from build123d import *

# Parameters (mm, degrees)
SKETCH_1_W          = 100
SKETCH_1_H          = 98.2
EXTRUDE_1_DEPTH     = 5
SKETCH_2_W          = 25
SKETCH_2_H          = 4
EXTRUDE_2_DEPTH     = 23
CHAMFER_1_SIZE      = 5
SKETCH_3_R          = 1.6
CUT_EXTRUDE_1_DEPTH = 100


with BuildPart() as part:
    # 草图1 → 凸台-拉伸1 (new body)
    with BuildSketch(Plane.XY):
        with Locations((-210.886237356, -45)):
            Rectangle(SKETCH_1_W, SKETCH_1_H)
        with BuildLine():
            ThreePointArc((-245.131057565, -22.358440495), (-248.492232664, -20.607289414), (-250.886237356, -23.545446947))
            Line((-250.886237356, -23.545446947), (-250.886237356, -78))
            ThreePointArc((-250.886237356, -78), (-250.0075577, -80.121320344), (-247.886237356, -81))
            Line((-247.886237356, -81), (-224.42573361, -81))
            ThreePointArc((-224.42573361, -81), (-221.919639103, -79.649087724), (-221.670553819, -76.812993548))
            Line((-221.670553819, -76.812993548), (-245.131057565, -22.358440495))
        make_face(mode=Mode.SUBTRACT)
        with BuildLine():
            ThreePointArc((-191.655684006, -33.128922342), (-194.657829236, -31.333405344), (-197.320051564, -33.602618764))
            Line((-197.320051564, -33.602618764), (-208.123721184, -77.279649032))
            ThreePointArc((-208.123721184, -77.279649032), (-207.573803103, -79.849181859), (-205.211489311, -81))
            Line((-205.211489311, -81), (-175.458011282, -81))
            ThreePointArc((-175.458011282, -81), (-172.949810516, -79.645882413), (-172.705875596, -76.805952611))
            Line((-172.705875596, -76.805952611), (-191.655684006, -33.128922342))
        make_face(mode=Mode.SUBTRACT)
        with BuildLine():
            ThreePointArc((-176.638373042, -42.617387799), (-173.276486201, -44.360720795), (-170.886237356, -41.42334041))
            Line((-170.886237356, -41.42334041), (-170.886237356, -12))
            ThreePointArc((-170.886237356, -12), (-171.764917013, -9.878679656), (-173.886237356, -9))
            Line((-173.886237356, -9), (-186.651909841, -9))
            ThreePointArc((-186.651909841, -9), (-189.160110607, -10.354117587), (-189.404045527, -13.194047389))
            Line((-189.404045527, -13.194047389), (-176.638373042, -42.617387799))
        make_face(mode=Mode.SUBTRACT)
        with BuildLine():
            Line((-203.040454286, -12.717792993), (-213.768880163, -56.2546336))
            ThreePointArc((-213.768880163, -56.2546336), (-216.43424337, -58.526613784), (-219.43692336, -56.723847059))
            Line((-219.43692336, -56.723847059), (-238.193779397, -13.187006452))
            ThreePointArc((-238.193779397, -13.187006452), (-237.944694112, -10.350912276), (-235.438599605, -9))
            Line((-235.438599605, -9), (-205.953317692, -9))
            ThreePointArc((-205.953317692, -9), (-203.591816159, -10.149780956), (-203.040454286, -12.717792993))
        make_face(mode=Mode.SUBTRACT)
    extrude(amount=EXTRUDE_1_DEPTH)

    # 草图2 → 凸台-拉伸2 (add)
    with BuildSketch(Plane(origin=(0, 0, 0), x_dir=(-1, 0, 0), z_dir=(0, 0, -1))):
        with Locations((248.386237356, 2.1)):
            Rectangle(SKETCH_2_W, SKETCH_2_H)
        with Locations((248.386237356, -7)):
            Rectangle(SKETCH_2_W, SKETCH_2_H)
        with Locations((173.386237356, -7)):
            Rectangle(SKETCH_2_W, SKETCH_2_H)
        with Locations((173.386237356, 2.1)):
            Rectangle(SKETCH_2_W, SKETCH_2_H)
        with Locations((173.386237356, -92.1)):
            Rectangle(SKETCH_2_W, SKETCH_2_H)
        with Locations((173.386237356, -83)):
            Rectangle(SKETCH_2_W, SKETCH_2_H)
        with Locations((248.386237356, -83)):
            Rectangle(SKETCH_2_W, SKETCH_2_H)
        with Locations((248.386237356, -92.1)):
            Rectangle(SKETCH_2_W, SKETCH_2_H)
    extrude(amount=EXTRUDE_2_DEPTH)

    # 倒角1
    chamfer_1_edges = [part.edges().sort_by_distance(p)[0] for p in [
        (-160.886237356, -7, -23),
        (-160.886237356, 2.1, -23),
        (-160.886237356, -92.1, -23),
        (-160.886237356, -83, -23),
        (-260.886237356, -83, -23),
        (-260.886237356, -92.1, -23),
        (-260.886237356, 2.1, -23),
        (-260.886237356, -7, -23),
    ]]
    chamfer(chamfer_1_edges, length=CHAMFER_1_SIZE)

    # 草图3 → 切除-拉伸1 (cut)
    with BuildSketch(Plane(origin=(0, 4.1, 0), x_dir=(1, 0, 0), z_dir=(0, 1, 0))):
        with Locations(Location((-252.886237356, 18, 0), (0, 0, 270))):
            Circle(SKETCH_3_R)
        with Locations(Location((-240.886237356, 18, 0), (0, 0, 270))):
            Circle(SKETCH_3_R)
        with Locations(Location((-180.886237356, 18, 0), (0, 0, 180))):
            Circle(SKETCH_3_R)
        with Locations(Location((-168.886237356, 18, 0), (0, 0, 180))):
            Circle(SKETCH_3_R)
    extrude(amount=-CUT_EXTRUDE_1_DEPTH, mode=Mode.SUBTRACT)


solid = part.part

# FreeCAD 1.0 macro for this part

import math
import FreeCAD as App
import Part
import Sketcher


def edges_at(feature, points):
    """Names of the edges that pass closest to the given points."""
    edges = feature.Shape.Edges
    near = lambda p: min(range(len(edges)), key=lambda i: edges[i].distToShape(Part.Vertex(*p))[0])
    return sorted({f"Edge{near(p) + 1}" for p in points})


def add_polygon(sketch, points):
    """Adds a closed chain of lines whose ends are joined by coincident constraints."""
    first, n = sketch.GeometryCount, len(points)
    for a, b in zip(points, points[1:] + points[:1]):
        sketch.addGeometry(Part.LineSegment(App.Vector(*a, 0), App.Vector(*b, 0)), False)
    for i in range(n):
        sketch.addConstraint(Sketcher.Constraint("Coincident", first + i, 2, first + (i + 1) % n, 1))

doc = App.newDocument("Part")
body = doc.addObject("PartDesign::Body", "Body")

# Sketch on XY plane
sketch1 = doc.addObject("Sketcher::SketchObject", "Sketch")
body.addObject(sketch1)
sketch1.AttachmentSupport = (doc.XY_Plane, [""])
sketch1.MapMode = "FlatFace"
add_polygon(sketch1, [(-260.886237, 4.1), (-260.886237, -94.1), (-160.886237, -94.1), (-160.886237, 4.1)])  # lines 0-3
sketch1.addGeometry(Part.ArcOfCircle(Part.Circle(App.Vector(-247.886237, -23.545447, 0), App.Vector(0, 0, 1), 3), math.radians(23.307693), math.radians(180)), False)  # 4
sketch1.addGeometry(Part.LineSegment(App.Vector(-245.131058, -22.35844, 0), App.Vector(-221.670554, -76.812994, 0)), False)  # 5
sketch1.addGeometry(Part.ArcOfCircle(Part.Circle(App.Vector(-224.425734, -78, 0), App.Vector(0, 0, 1), 3), math.radians(-90), math.radians(23.307693)), False)  # 6
sketch1.addGeometry(Part.LineSegment(App.Vector(-224.425734, -81, 0), App.Vector(-247.886237, -81, 0)), False)  # 7
sketch1.addGeometry(Part.ArcOfCircle(Part.Circle(App.Vector(-247.886237, -78, 0), App.Vector(0, 0, 1), 3), math.radians(180), math.radians(270)), False)  # 8
sketch1.addGeometry(Part.LineSegment(App.Vector(-250.886237, -78, 0), App.Vector(-250.886237, -23.545447, 0)), False)  # 9
sketch1.addGeometry(Part.ArcOfCircle(Part.Circle(App.Vector(-194.40782, -34.32297, 0), App.Vector(0, 0, 1), 3), math.radians(23.454195), math.radians(166.106555)), False)  # 10
sketch1.addGeometry(Part.LineSegment(App.Vector(-191.655684, -33.128922, 0), App.Vector(-172.705876, -76.805953, 0)), False)  # 11
sketch1.addGeometry(Part.ArcOfCircle(Part.Circle(App.Vector(-175.458011, -78, 0), App.Vector(0, 0, 1), 3), math.radians(-90), math.radians(23.454195)), False)  # 12
sketch1.addGeometry(Part.LineSegment(App.Vector(-175.458011, -81, 0), App.Vector(-205.211489, -81, 0)), False)  # 13
sketch1.addGeometry(Part.ArcOfCircle(Part.Circle(App.Vector(-205.211489, -78, 0), App.Vector(0, 0, 1), 3), math.radians(166.106555), math.radians(270)), False)  # 14
sketch1.addGeometry(Part.LineSegment(App.Vector(-208.123721, -77.279649, 0), App.Vector(-197.320052, -33.602619, 0)), False)  # 15
sketch1.addGeometry(Part.ArcOfCircle(Part.Circle(App.Vector(-205.953318, -12, 0), App.Vector(0, 0, 1), 3), math.radians(-13.843125), math.radians(90)), False)  # 16
sketch1.addGeometry(Part.LineSegment(App.Vector(-203.040454, -12.717793, 0), App.Vector(-213.76888, -56.254634, 0)), False)  # 17
sketch1.addGeometry(Part.ArcOfCircle(Part.Circle(App.Vector(-216.681744, -55.536841, 0), App.Vector(0, 0, 1), 3), math.radians(-156.692307), math.radians(-13.843125)), False)  # 18
sketch1.addGeometry(Part.LineSegment(App.Vector(-219.436923, -56.723847, 0), App.Vector(-238.193779, -13.187006, 0)), False)  # 19
sketch1.addGeometry(Part.ArcOfCircle(Part.Circle(App.Vector(-235.4386, -12, 0), App.Vector(0, 0, 1), 3), math.radians(90), math.radians(203.307693)), False)  # 20
sketch1.addGeometry(Part.LineSegment(App.Vector(-235.4386, -9, 0), App.Vector(-205.953318, -9, 0)), False)  # 21
sketch1.addGeometry(Part.ArcOfCircle(Part.Circle(App.Vector(-173.886237, -41.42334, 0), App.Vector(0, 0, 1), 3), math.radians(-156.545805), math.radians(0)), False)  # 22
sketch1.addGeometry(Part.LineSegment(App.Vector(-176.638373, -42.617388, 0), App.Vector(-189.404046, -13.194047, 0)), False)  # 23
sketch1.addGeometry(Part.ArcOfCircle(Part.Circle(App.Vector(-186.65191, -12, 0), App.Vector(0, 0, 1), 3), math.radians(90), math.radians(203.454195)), False)  # 24
sketch1.addGeometry(Part.LineSegment(App.Vector(-186.65191, -9, 0), App.Vector(-173.886237, -9, 0)), False)  # 25
sketch1.addGeometry(Part.ArcOfCircle(Part.Circle(App.Vector(-173.886237, -12, 0), App.Vector(0, 0, 1), 3), math.radians(0), math.radians(90)), False)  # 26
sketch1.addGeometry(Part.LineSegment(App.Vector(-170.886237, -12, 0), App.Vector(-170.886237, -41.42334, 0)), False)  # 27
sketch1.addConstraint(Sketcher.Constraint("Coincident", 4, 1, 5, 1))
sketch1.addConstraint(Sketcher.Constraint("Coincident", 5, 2, 6, 2))
sketch1.addConstraint(Sketcher.Constraint("Coincident", 6, 1, 7, 1))
sketch1.addConstraint(Sketcher.Constraint("Coincident", 7, 2, 8, 2))
sketch1.addConstraint(Sketcher.Constraint("Coincident", 8, 1, 9, 1))
sketch1.addConstraint(Sketcher.Constraint("Coincident", 9, 2, 4, 2))
sketch1.addConstraint(Sketcher.Constraint("Coincident", 10, 1, 11, 1))
sketch1.addConstraint(Sketcher.Constraint("Coincident", 11, 2, 12, 2))
sketch1.addConstraint(Sketcher.Constraint("Coincident", 12, 1, 13, 1))
sketch1.addConstraint(Sketcher.Constraint("Coincident", 13, 2, 14, 2))
sketch1.addConstraint(Sketcher.Constraint("Coincident", 14, 1, 15, 1))
sketch1.addConstraint(Sketcher.Constraint("Coincident", 15, 2, 10, 2))
sketch1.addConstraint(Sketcher.Constraint("Coincident", 16, 1, 17, 1))
sketch1.addConstraint(Sketcher.Constraint("Coincident", 17, 2, 18, 2))
sketch1.addConstraint(Sketcher.Constraint("Coincident", 18, 1, 19, 1))
sketch1.addConstraint(Sketcher.Constraint("Coincident", 19, 2, 20, 2))
sketch1.addConstraint(Sketcher.Constraint("Coincident", 20, 1, 21, 1))
sketch1.addConstraint(Sketcher.Constraint("Coincident", 21, 2, 16, 2))
sketch1.addConstraint(Sketcher.Constraint("Coincident", 22, 1, 23, 1))
sketch1.addConstraint(Sketcher.Constraint("Coincident", 23, 2, 24, 2))
sketch1.addConstraint(Sketcher.Constraint("Coincident", 24, 1, 25, 1))
sketch1.addConstraint(Sketcher.Constraint("Coincident", 25, 2, 26, 2))
sketch1.addConstraint(Sketcher.Constraint("Coincident", 26, 1, 27, 1))
sketch1.addConstraint(Sketcher.Constraint("Coincident", 27, 2, 22, 2))
sketch1.addConstraint(Sketcher.Constraint("Vertical", 0))
sketch1.addConstraint(Sketcher.Constraint("Horizontal", 1))
sketch1.addConstraint(Sketcher.Constraint("Vertical", 2))
sketch1.addConstraint(Sketcher.Constraint("Horizontal", 3))
sketch1.addConstraint(Sketcher.Constraint("Horizontal", 7))
sketch1.addConstraint(Sketcher.Constraint("Vertical", 9))
sketch1.addConstraint(Sketcher.Constraint("Horizontal", 13))
sketch1.addConstraint(Sketcher.Constraint("Horizontal", 21))
sketch1.addConstraint(Sketcher.Constraint("Horizontal", 25))
sketch1.addConstraint(Sketcher.Constraint("Vertical", 27))
sketch1.addConstraint(Sketcher.Constraint("Radius", 4, 3.0))
sketch1.addConstraint(Sketcher.Constraint("Radius", 6, 3.0))
sketch1.addConstraint(Sketcher.Constraint("Radius", 8, 3.0))
sketch1.addConstraint(Sketcher.Constraint("Radius", 10, 3.0))
sketch1.addConstraint(Sketcher.Constraint("Radius", 12, 3.0))
sketch1.addConstraint(Sketcher.Constraint("Radius", 14, 3.0))
sketch1.addConstraint(Sketcher.Constraint("Radius", 16, 3.0))
sketch1.addConstraint(Sketcher.Constraint("Radius", 18, 3.0))
sketch1.addConstraint(Sketcher.Constraint("Radius", 20, 3.0))
sketch1.addConstraint(Sketcher.Constraint("Radius", 22, 3.0))
sketch1.addConstraint(Sketcher.Constraint("Radius", 24, 3.0))
sketch1.addConstraint(Sketcher.Constraint("Radius", 26, 3.0))
sketch1.addConstraint(Sketcher.Constraint("DistanceX", 1, 1, 1, 2, 100.0))
sketch1.addConstraint(Sketcher.Constraint("DistanceY", 0, 2, 0, 1, 98.2))
sketch1.addConstraint(Sketcher.Constraint("DistanceY", 6, 3, -1, 1, 78.0))
sketch1.addConstraint(Sketcher.Constraint("DistanceY", 12, 3, -1, 1, 78.0))
sketch1.addConstraint(Sketcher.Constraint("DistanceY", 16, 3, -1, 1, 12.0))
sketch1.addConstraint(Sketcher.Constraint("DistanceY", 24, 3, -1, 1, 12.0))
sketch1.addConstraint(Sketcher.Constraint("DistanceY", 8, 1, -1, 1, 78.0))
sketch1.addConstraint(Sketcher.Constraint("DistanceY", 26, 1, -1, 1, 12.0))
sketch1.addConstraint(Sketcher.Constraint("DistanceX", 0, 2, 8, 3, 13.0))
sketch1.addConstraint(Sketcher.Constraint("DistanceX", 22, 3, 1, 2, 13.0))
sketch1.addConstraint(Sketcher.Constraint("DistanceX", 0, 2, 7, 2, 13.0))
sketch1.addConstraint(Sketcher.Constraint("DistanceX", 25, 2, 2, 2, 13.0))
sketch1.addConstraint(Sketcher.Constraint("DistanceY", 0, 2, -1, 1, 94.1))
sketch1.addConstraint(Sketcher.Constraint("DistanceX", 13, 2, 13, 1, 29.753478))
sketch1.addConstraint(Sketcher.Constraint("DistanceX", 21, 1, 21, 2, 29.485282))
sketch1.addConstraint(Sketcher.Constraint("DistanceY", 27, 2, 27, 1, 29.42334))
sketch1.addConstraint(Sketcher.Constraint("DistanceX", 20, 3, -1, 1, 235.4386))
sketch1.addConstraint(Sketcher.Constraint("DistanceX", 20, 1, -1, 1, 235.4386))
sketch1.addConstraint(Sketcher.Constraint("DistanceX", 16, 3, 10, 3, 11.545498))
sketch1.addConstraint(Sketcher.Constraint("DistanceY", 18, 3, 22, 3, 14.1135))
sketch1.addConstraint(Sketcher.Constraint("DistanceY", 18, 3, 4, 1, 33.1784))
sketch1.addConstraint(Sketcher.Constraint("DistanceY", 14, 1, 18, 1, 20.555802))
sketch1.addConstraint(Sketcher.Constraint("DistanceX", 21, 2, 10, 3, 11.545498))
sketch1.addConstraint(Sketcher.Constraint("Distance", 17, 44.83922))
sketch1.addConstraint(Sketcher.Constraint("Distance", 23, 32.073281))
sketch1.addConstraint(Sketcher.Constraint("DistanceX", 7, 2, 7, 1, 23.460504))
sketch1.addConstraint(Sketcher.Constraint("DistanceX", 25, 1, 25, 2, 12.765672))
sketch1.addConstraint(Sketcher.Constraint("DistanceY", 9, 1, 9, 2, 54.454553))
sketch1.addConstraint(Sketcher.Constraint("DistanceY", 10, 3, -1, 1, 34.32297))
sketch1.addConstraint(Sketcher.Constraint("DistanceX", 12, 3, -1, 1, 175.458011))
sketch1.addConstraint(Sketcher.Constraint("DistanceX", 14, 3, -1, 1, 205.211489))
sketch1.addConstraint(Sketcher.Constraint("DistanceY", 18, 3, -1, 1, 55.536841))
sketch1.addConstraint(Sketcher.Constraint("DistanceX", 24, 3, -1, 1, 186.65191))
sketch1.addConstraint(Sketcher.Constraint("DistanceX", 12, 1, -1, 1, 175.458011))
sketch1.addConstraint(Sketcher.Constraint("DistanceX", 14, 1, -1, 1, 208.123721))
sketch1.addConstraint(Sketcher.Constraint("DistanceX", 15, 2, -1, 1, 197.320052))
sketch1.addConstraint(Sketcher.Constraint("DistanceX", 17, 2, -1, 1, 213.76888))
sketch1.addConstraint(Sketcher.Constraint("DistanceX", 19, 2, -1, 1, 238.193779))
sketch1.addConstraint(Sketcher.Constraint("DistanceX", 24, 1, -1, 1, 186.65191))
sketch1.addConstraint(Sketcher.Constraint("DistanceX", 6, 3, 18, 3, 7.74399))
sketch1.addConstraint(Sketcher.Constraint("DistanceX", 4, 3, 4, 1, 2.75518))
sketch1.addConstraint(Sketcher.Constraint("DistanceX", 6, 3, 5, 2, 2.75518))
sketch1.addConstraint(Sketcher.Constraint("DistanceX", 6, 1, 5, 2, 2.75518))
sketch1.addConstraint(Sketcher.Constraint("DistanceY", 22, 3, 10, 1, 8.294418))
sketch1.addConstraint(Sketcher.Constraint("DistanceX", 11, 2, 1, 2, 11.819638))
sketch1.addConstraint(Sketcher.Constraint("DistanceX", 10, 1, 22, 1, 15.017311))
pad1 = doc.addObject("PartDesign::Pad", "Pad")
body.addObject(pad1)
pad1.Profile = sketch1
pad1.Length = 5

# Sketch on XY plane
sketch2 = doc.addObject("Sketcher::SketchObject", "Sketch001")
body.addObject(sketch2)
sketch2.AttachmentSupport = (doc.XY_Plane, [""])
sketch2.MapMode = "FlatFace"
add_polygon(sketch2, [(-235.886237, 4.1), (-235.886237, 0.1), (-260.886237, 0.1), (-260.886237, 4.1)])  # lines 0-3
add_polygon(sketch2, [(-235.886237, -5), (-235.886237, -9), (-260.886237, -9), (-260.886237, -5)])  # lines 4-7
add_polygon(sketch2, [(-160.886237, -5), (-160.886237, -9), (-185.886237, -9), (-185.886237, -5)])  # lines 8-11
add_polygon(sketch2, [(-160.886237, 4.1), (-160.886237, 0.1), (-185.886237, 0.1), (-185.886237, 4.1)])  # lines 12-15
add_polygon(sketch2, [(-160.886237, -90.1), (-160.886237, -94.1), (-185.886237, -94.1), (-185.886237, -90.1)])  # lines 16-19
add_polygon(sketch2, [(-160.886237, -81), (-160.886237, -85), (-185.886237, -85), (-185.886237, -81)])  # lines 20-23
add_polygon(sketch2, [(-235.886237, -81), (-235.886237, -85), (-260.886237, -85), (-260.886237, -81)])  # lines 24-27
add_polygon(sketch2, [(-235.886237, -90.1), (-235.886237, -94.1), (-260.886237, -94.1), (-260.886237, -90.1)])  # lines 28-31
sketch2.addConstraint(Sketcher.Constraint("Vertical", 0))
sketch2.addConstraint(Sketcher.Constraint("Horizontal", 1))
sketch2.addConstraint(Sketcher.Constraint("Vertical", 2))
sketch2.addConstraint(Sketcher.Constraint("Horizontal", 3))
sketch2.addConstraint(Sketcher.Constraint("Vertical", 4))
sketch2.addConstraint(Sketcher.Constraint("Horizontal", 5))
sketch2.addConstraint(Sketcher.Constraint("Vertical", 6))
sketch2.addConstraint(Sketcher.Constraint("Horizontal", 7))
sketch2.addConstraint(Sketcher.Constraint("Vertical", 8))
sketch2.addConstraint(Sketcher.Constraint("Horizontal", 9))
sketch2.addConstraint(Sketcher.Constraint("Vertical", 10))
sketch2.addConstraint(Sketcher.Constraint("Horizontal", 11))
sketch2.addConstraint(Sketcher.Constraint("Vertical", 12))
sketch2.addConstraint(Sketcher.Constraint("Horizontal", 13))
sketch2.addConstraint(Sketcher.Constraint("Vertical", 14))
sketch2.addConstraint(Sketcher.Constraint("Horizontal", 15))
sketch2.addConstraint(Sketcher.Constraint("Vertical", 16))
sketch2.addConstraint(Sketcher.Constraint("Horizontal", 17))
sketch2.addConstraint(Sketcher.Constraint("Vertical", 18))
sketch2.addConstraint(Sketcher.Constraint("Horizontal", 19))
sketch2.addConstraint(Sketcher.Constraint("Vertical", 20))
sketch2.addConstraint(Sketcher.Constraint("Horizontal", 21))
sketch2.addConstraint(Sketcher.Constraint("Vertical", 22))
sketch2.addConstraint(Sketcher.Constraint("Horizontal", 23))
sketch2.addConstraint(Sketcher.Constraint("Vertical", 24))
sketch2.addConstraint(Sketcher.Constraint("Horizontal", 25))
sketch2.addConstraint(Sketcher.Constraint("Vertical", 26))
sketch2.addConstraint(Sketcher.Constraint("Horizontal", 27))
sketch2.addConstraint(Sketcher.Constraint("Vertical", 28))
sketch2.addConstraint(Sketcher.Constraint("Horizontal", 29))
sketch2.addConstraint(Sketcher.Constraint("Vertical", 30))
sketch2.addConstraint(Sketcher.Constraint("Horizontal", 31))
sketch2.addConstraint(Sketcher.Constraint("Horizontal", 5, 2, 8, 2))
sketch2.addConstraint(Sketcher.Constraint("Horizontal", 7, 2, 10, 2))
sketch2.addConstraint(Sketcher.Constraint("Horizontal", 1, 2, 12, 2))
sketch2.addConstraint(Sketcher.Constraint("Horizontal", 3, 2, 14, 2))
sketch2.addConstraint(Sketcher.Constraint("Horizontal", 21, 2, 24, 2))
sketch2.addConstraint(Sketcher.Constraint("Horizontal", 23, 2, 26, 2))
sketch2.addConstraint(Sketcher.Constraint("Horizontal", 17, 2, 28, 2))
sketch2.addConstraint(Sketcher.Constraint("Horizontal", 19, 2, 30, 2))
sketch2.addConstraint(Sketcher.Constraint("Vertical", 3, 2, 4, 2))
sketch2.addConstraint(Sketcher.Constraint("Vertical", 2, 2, 5, 2))
sketch2.addConstraint(Sketcher.Constraint("Vertical", 11, 2, 12, 2))
sketch2.addConstraint(Sketcher.Constraint("Vertical", 10, 2, 13, 2))
sketch2.addConstraint(Sketcher.Constraint("Vertical", 15, 2, 16, 2))
sketch2.addConstraint(Sketcher.Constraint("Vertical", 14, 2, 17, 2))
sketch2.addConstraint(Sketcher.Constraint("Vertical", 19, 2, 20, 2))
sketch2.addConstraint(Sketcher.Constraint("Vertical", 18, 2, 21, 2))
sketch2.addConstraint(Sketcher.Constraint("Vertical", 7, 2, 24, 2))
sketch2.addConstraint(Sketcher.Constraint("Vertical", 6, 2, 25, 2))
sketch2.addConstraint(Sketcher.Constraint("Vertical", 27, 2, 28, 2))
sketch2.addConstraint(Sketcher.Constraint("Vertical", 26, 2, 29, 2))
sketch2.addConstraint(Sketcher.Constraint("Equal", 7, 9))
sketch2.addConstraint(Sketcher.Constraint("Equal", 2, 4))
sketch2.addConstraint(Sketcher.Constraint("Equal", 14, 16))
sketch2.addConstraint(Sketcher.Constraint("Equal", 18, 20))
sketch2.addConstraint(Sketcher.Constraint("DistanceX", 1, 2, 1, 1, 25.0))
sketch2.addConstraint(Sketcher.Constraint("DistanceY", 0, 2, 0, 1, 4.0))
sketch2.addConstraint(Sketcher.Constraint("DistanceY", 4, 2, -1, 1, 9.0))
sketch2.addConstraint(Sketcher.Constraint("DistanceY", 20, 2, -1, 1, 85.0))
sketch2.addConstraint(Sketcher.Constraint("DistanceX", 4, 2, 8, 2, 75.0))
sketch2.addConstraint(Sketcher.Constraint("DistanceY", -1, 1, 0, 2, 0.1))
sketch2.addConstraint(Sketcher.Constraint("DistanceY", 16, 2, -1, 1, 94.1))
sketch2.addConstraint(Sketcher.Constraint("DistanceX", 0, 2, -1, 1, 235.886237))
pad2 = doc.addObject("PartDesign::Pad", "Pad001")
body.addObject(pad2)
pad2.Profile = sketch2
pad2.Length = 23
pad2.Reversed = True
doc.recompute()

chamfer = doc.addObject("PartDesign::Chamfer", "Chamfer")
body.addObject(chamfer)
chamfer.Base = (pad2, edges_at(pad2, [
    (-160.886, -7, -23),
    (-160.886, 2.1, -23),
    (-160.886, -92.1, -23),
    (-160.886, -83, -23),
    (-260.886, -83, -23),
    (-260.886, -92.1, -23),
    (-260.886, 2.1, -23),
    (-260.886, -7, -23),
]))
chamfer.Size = 5

# Sketch on XZ plane
sketch3 = doc.addObject("Sketcher::SketchObject", "Sketch002")
body.addObject(sketch3)
sketch3.AttachmentSupport = (doc.XZ_Plane, [""])
sketch3.MapMode = "FlatFace"
sketch3.AttachmentOffset = App.Placement(App.Vector(0, 0, -4.1), App.Rotation())
sketch3.addGeometry(Part.Circle(App.Vector(-252.886237, -18, 0), App.Vector(0, 0, 1), 1.6), False)
sketch3.addGeometry(Part.Circle(App.Vector(-240.886237, -18, 0), App.Vector(0, 0, 1), 1.6), False)
sketch3.addGeometry(Part.Circle(App.Vector(-180.886237, -18, 0), App.Vector(0, 0, 1), 1.6), False)
sketch3.addGeometry(Part.Circle(App.Vector(-168.886237, -18, 0), App.Vector(0, 0, 1), 1.6), False)
sketch3.addConstraint(Sketcher.Constraint("Equal", 0, 1))
sketch3.addConstraint(Sketcher.Constraint("Equal", 1, 2))
sketch3.addConstraint(Sketcher.Constraint("Equal", 2, 3))
sketch3.addConstraint(Sketcher.Constraint("Horizontal", 0, 3, 1, 3))
sketch3.addConstraint(Sketcher.Constraint("Horizontal", 1, 3, 2, 3))
sketch3.addConstraint(Sketcher.Constraint("Horizontal", 2, 3, 3, 3))
sketch3.addConstraint(Sketcher.Constraint("Diameter", 0, 3.2))
sketch3.addConstraint(Sketcher.Constraint("DistanceY", 0, 3, -1, 1, 18.0))
sketch3.addConstraint(Sketcher.Constraint("DistanceX", 0, 3, 1, 3, 12.0))
sketch3.addConstraint(Sketcher.Constraint("DistanceX", 1, 3, 2, 3, 60.0))
sketch3.addConstraint(Sketcher.Constraint("DistanceX", 2, 3, 3, 3, 12.0))
sketch3.addConstraint(Sketcher.Constraint("DistanceX", 0, 3, -1, 1, 252.886237))
pocket1 = doc.addObject("PartDesign::Pocket", "Pocket")
body.addObject(pocket1)
pocket1.Profile = sketch3
pocket1.Length = 100
pocket1.Reversed = True

doc.recompute()
